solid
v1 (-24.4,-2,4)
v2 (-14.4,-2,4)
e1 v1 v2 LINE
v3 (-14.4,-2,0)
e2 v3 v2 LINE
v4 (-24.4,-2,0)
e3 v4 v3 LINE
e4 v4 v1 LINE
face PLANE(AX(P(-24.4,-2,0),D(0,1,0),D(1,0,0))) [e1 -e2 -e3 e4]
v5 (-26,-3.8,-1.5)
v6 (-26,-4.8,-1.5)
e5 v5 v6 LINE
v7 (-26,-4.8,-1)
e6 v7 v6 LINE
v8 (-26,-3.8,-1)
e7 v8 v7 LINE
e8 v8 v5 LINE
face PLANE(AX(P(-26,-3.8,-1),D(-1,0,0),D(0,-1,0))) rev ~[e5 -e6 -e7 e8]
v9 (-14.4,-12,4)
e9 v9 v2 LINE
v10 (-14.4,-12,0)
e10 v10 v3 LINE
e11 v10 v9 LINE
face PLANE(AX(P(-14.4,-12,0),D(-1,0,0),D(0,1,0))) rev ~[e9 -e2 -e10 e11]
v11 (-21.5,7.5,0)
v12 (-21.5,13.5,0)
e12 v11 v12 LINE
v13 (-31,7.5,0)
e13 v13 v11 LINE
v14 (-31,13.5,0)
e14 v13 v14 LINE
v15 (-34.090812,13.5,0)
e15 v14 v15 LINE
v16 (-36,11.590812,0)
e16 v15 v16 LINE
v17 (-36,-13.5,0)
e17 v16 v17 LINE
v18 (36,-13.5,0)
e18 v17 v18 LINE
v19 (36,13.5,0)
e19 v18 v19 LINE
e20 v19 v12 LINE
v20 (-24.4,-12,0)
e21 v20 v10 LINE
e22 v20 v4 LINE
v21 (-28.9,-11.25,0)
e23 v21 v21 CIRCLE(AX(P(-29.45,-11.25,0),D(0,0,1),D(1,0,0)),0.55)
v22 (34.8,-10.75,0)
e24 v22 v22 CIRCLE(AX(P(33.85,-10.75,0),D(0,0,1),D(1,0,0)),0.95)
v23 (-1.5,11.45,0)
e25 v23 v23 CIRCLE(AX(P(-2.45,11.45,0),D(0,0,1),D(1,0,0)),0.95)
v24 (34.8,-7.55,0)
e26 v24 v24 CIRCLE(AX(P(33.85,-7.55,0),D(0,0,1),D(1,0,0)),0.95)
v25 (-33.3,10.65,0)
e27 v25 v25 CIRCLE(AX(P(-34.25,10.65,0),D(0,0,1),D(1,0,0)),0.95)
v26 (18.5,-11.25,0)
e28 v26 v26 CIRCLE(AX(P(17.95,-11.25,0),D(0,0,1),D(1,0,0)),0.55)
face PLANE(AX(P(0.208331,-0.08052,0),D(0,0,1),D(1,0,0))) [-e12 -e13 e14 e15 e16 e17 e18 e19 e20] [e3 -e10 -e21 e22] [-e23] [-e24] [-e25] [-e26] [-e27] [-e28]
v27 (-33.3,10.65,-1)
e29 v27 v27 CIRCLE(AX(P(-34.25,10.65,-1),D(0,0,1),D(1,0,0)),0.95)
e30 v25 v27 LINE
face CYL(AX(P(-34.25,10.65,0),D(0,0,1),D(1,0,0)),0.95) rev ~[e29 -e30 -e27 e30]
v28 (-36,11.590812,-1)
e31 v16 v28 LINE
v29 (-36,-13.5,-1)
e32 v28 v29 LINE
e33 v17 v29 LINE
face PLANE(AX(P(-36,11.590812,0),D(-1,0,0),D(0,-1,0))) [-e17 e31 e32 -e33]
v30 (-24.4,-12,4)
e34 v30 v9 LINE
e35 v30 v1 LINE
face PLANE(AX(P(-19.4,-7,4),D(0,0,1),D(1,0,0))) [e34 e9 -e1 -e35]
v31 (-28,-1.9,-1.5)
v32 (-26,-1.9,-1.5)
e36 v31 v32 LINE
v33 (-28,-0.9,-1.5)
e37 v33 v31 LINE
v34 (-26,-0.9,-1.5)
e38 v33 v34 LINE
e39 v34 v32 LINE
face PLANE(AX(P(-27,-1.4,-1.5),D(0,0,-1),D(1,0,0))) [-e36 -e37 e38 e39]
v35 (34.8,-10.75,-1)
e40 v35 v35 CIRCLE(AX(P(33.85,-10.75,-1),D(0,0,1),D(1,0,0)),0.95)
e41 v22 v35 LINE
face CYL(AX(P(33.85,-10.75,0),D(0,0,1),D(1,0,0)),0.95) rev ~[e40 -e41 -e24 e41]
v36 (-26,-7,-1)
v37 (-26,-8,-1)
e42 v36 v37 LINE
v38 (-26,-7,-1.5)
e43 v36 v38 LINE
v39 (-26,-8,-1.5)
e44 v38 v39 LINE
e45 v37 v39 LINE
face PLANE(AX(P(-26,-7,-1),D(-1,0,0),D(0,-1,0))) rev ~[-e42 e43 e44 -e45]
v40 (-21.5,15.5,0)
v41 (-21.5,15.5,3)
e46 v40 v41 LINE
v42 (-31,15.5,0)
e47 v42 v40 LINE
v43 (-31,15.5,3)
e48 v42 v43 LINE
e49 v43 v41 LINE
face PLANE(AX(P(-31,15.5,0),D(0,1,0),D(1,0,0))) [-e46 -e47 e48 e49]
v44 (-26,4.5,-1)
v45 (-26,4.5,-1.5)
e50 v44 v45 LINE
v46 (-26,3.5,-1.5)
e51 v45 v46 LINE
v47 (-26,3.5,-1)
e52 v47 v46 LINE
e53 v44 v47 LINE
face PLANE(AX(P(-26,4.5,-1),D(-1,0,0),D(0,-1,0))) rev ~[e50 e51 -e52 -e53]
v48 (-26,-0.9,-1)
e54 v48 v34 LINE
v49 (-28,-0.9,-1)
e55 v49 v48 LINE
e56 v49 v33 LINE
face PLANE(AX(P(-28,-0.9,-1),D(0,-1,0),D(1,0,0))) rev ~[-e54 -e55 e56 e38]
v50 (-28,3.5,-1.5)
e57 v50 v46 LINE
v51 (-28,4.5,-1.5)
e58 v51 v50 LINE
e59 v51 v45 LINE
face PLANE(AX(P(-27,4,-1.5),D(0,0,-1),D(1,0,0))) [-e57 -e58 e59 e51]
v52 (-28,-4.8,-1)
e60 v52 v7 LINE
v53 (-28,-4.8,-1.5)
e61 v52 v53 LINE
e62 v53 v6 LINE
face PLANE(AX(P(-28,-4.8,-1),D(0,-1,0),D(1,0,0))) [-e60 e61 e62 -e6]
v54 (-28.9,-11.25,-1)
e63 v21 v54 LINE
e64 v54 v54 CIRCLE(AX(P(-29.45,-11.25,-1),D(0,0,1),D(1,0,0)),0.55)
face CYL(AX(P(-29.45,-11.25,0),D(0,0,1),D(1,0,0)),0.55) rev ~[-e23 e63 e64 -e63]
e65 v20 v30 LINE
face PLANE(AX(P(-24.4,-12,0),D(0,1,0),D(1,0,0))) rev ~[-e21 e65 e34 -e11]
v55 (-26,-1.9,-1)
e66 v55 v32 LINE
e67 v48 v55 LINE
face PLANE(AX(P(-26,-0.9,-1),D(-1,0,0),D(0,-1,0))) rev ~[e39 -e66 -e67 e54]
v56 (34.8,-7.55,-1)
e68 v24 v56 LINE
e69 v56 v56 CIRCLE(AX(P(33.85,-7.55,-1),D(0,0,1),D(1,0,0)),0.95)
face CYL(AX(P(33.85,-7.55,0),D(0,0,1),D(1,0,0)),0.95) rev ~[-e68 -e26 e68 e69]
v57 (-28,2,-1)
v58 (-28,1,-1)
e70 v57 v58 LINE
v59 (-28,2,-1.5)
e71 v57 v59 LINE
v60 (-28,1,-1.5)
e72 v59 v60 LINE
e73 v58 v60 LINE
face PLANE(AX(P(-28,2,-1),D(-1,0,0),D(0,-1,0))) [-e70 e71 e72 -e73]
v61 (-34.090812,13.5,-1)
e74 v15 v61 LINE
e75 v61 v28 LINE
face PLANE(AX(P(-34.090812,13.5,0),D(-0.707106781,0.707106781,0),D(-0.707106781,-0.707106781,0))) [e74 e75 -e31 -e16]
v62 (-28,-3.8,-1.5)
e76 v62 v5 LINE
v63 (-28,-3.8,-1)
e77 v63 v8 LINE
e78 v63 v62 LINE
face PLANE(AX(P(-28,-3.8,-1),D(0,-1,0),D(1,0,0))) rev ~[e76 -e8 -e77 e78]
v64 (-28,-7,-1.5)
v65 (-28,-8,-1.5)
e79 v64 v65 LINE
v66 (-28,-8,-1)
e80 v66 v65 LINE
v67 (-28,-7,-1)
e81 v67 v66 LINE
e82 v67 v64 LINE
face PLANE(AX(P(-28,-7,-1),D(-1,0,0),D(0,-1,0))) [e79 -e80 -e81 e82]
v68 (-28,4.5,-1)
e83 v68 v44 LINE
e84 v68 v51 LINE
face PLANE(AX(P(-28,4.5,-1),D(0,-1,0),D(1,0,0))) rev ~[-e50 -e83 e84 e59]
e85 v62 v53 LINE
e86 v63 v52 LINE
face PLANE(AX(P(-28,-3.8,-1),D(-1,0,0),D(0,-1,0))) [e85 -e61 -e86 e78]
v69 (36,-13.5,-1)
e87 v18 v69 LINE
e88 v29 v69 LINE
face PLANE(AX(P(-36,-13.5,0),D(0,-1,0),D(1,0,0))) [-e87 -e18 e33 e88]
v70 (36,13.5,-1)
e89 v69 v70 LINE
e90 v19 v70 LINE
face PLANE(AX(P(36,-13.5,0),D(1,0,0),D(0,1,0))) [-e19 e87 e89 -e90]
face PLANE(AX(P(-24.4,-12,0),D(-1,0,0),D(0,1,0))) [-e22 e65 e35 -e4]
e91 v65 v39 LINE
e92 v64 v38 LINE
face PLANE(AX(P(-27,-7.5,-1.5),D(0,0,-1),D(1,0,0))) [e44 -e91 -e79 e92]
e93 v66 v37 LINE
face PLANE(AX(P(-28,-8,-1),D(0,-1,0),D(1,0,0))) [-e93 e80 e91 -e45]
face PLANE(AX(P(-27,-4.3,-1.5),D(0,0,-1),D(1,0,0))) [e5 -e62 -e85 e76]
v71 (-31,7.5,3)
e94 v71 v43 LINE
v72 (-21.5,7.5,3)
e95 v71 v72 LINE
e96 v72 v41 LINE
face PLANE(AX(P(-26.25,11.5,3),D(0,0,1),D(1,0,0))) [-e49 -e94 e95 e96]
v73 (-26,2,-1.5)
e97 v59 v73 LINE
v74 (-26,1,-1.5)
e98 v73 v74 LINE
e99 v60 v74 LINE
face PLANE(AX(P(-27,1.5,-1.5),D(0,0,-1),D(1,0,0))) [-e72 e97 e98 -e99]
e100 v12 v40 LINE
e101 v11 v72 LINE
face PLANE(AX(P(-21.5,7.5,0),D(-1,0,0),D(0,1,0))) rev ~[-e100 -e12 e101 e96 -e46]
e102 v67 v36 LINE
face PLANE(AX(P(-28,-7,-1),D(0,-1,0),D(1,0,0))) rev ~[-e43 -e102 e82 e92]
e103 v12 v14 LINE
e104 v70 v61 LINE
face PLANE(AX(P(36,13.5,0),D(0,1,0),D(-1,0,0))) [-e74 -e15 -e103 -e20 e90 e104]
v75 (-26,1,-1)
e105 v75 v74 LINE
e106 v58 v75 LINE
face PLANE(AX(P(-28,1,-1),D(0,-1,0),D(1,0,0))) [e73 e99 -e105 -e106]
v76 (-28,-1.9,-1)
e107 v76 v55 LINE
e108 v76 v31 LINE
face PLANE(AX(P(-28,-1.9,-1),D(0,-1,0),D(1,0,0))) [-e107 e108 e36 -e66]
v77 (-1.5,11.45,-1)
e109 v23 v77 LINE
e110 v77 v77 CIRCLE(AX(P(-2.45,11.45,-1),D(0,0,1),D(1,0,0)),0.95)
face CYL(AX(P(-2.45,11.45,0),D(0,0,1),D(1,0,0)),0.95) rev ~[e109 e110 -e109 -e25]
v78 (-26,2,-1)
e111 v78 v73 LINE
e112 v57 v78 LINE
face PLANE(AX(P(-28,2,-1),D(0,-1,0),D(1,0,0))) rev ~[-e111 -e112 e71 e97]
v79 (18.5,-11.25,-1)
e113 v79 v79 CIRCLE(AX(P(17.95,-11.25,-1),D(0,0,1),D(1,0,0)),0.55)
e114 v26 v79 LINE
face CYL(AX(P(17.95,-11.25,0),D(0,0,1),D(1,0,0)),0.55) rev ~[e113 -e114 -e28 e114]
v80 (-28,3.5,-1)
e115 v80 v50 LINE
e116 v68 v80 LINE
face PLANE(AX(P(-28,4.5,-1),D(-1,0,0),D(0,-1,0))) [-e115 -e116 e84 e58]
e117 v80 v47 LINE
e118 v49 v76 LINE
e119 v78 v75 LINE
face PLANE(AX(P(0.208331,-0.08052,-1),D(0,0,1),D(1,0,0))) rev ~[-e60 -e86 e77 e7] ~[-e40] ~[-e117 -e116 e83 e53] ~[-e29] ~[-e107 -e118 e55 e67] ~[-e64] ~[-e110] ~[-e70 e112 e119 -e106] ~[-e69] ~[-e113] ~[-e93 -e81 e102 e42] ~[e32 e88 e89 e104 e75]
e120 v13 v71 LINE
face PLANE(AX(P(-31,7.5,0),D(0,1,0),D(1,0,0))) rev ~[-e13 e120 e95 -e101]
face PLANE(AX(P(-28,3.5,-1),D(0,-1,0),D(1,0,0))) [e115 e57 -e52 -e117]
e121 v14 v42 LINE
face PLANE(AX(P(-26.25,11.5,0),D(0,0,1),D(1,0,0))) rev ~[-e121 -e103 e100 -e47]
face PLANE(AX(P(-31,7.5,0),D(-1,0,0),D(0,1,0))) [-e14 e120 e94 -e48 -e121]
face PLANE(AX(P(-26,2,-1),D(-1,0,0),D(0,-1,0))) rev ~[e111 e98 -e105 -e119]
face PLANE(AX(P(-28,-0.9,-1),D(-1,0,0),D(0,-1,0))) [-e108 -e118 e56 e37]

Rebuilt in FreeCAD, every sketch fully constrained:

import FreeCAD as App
import Part
import Sketcher
Q = App.Units.Quantity


def add_polygon(sketch, points):
    """Adds a closed chain of lines whose ends are joined by coincident constraints."""
    first, n = sketch.GeometryCount, len(points)
    for a, b in zip(points, points[1:] + points[:1]):
        sketch.addGeometry(Part.LineSegment(App.Vector(*a, 0), App.Vector(*b, 0)), False)
    for i in range(n):
        sketch.addConstraint(Sketcher.Constraint("Coincident", first + i, 2, first + (i + 1) % n, 1))

doc = App.newDocument("Part")
params = doc.addObject("Spreadsheet::Sheet", "Params")
for row, (alias, value) in enumerate([
    ("sketch1_diameter", "1.1 mm"),
    ("sketch1_diameter2", "1.9 mm"),
    ("sketch1_width", "72 mm"),
    ("sketch1_height", "27 mm"),
    ("sketch1_length", "2.7 mm"),
    ("pad1_length", "1 mm"),
    ("sketch2_width", "10 mm"),
    ("pad2_length", "4 mm"),
    ("sketch3_width", "2 mm"),
    ("sketch3_height", "1 mm"),
    ("pad3_length", "0.5 mm"),
    ("sketch4_height", "8 mm"),
    ("sketch4_width", "9.5 mm"),
    ("pad4_length", "3 mm"),
], start=1):
    params.set(f"A{row}", alias)
    params.set(f"B{row}", "=" + value)
    params.setAlias(f"B{row}", alias)

body = doc.addObject("PartDesign::Body", "Body")

# Sketch on XY plane
sketch1 = body.newObject("Sketcher::SketchObject", "Sketch")
sketch1.AttachmentSupport = (doc.getObject("XY_Plane"), [""])
sketch1.MapMode = "FlatFace"
add_polygon(sketch1, [(-36, -13.5), (36, -13.5), (36, 13.5), (-34.1, 13.5), (-36, 11.6)])  # lines 0-4
sketch1.addGeometry(Part.Circle(App.Vector(-29.4, -11.2, 0), App.Vector(0, 0, 1), 0.6), False)  # 5
sketch1.addGeometry(Part.Circle(App.Vector(17.9, -11.2, 0), App.Vector(0, 0, 1), 0.6), False)  # 6
sketch1.addGeometry(Part.Circle(App.Vector(33.9, -10.8, 0), App.Vector(0, 0, 1), 0.9), False)  # 7
sketch1.addGeometry(Part.Circle(App.Vector(33.9, -7.5, 0), App.Vector(0, 0, 1), 0.9), False)  # 8
sketch1.addGeometry(Part.Circle(App.Vector(-34.2, 10.7, 0), App.Vector(0, 0, 1), 0.9), False)  # 9
sketch1.addGeometry(Part.Circle(App.Vector(-2.5, 11.4, 0), App.Vector(0, 0, 1), 0.9), False)  # 10
sketch1.addConstraint(Sketcher.Constraint("Horizontal", 0))
sketch1.addConstraint(Sketcher.Constraint("Vertical", 1))
sketch1.addConstraint(Sketcher.Constraint("Horizontal", 2))
sketch1.addConstraint(Sketcher.Constraint("Vertical", 4))
sketch1.addConstraint(Sketcher.Constraint("Equal", 5, 6))
sketch1.addConstraint(Sketcher.Constraint("Equal", 7, 8))
sketch1.addConstraint(Sketcher.Constraint("Equal", 8, 9))
sketch1.addConstraint(Sketcher.Constraint("Equal", 9, 10))
sketch1.addConstraint(Sketcher.Constraint("Symmetric", 1, 2, 4, 2, -1, 1))
sketch1.addConstraint(Sketcher.Constraint("Horizontal", 5, 3, 6, 3))
sketch1.addConstraint(Sketcher.Constraint("Vertical", 7, 3, 8, 3))
sketch1.addConstraint(Sketcher.Constraint("Diameter", 5, 1.1))
sketch1.addConstraint(Sketcher.Constraint("Diameter", 7, 1.9))
sketch1.addConstraint(Sketcher.Constraint("DistanceX", 0, 1, 0, 2, 72.0))
sketch1.addConstraint(Sketcher.Constraint("DistanceY", 1, 1, 1, 2, 27.0))
sketch1.addConstraint(Sketcher.Constraint("Angle", 3, Q("-135 deg")))
sketch1.addConstraint(Sketcher.Constraint("DistanceX", 5, 3, 10, 3, 27.0))
sketch1.addConstraint(Sketcher.Constraint("DistanceY", 8, 3, 10, 3, 19.0))
sketch1.addConstraint(Sketcher.Constraint("Distance", 3, 2.7))
sketch1.addConstraint(Sketcher.Constraint("DistanceX", 5, 3, 6, 3, 47.4))
sketch1.addConstraint(Sketcher.Constraint("DistanceX", 6, 3, 7, 3, 15.9))
sketch1.addConstraint(Sketcher.Constraint("DistanceY", 6, 3, 7, 3, 0.5))
sketch1.addConstraint(Sketcher.Constraint("DistanceY", 7, 3, 8, 3, 3.2))
sketch1.addConstraint(Sketcher.Constraint("DistanceX", 9, 3, 5, 3, 4.8))
sketch1.addConstraint(Sketcher.Constraint("DistanceY", 5, 3, 9, 3, 21.9))
sketch1.addConstraint(Sketcher.Constraint("DistanceX", 5, 3, -1, 1, 29.45))
sketch1.addConstraint(Sketcher.Constraint("DistanceY", 5, 3, -1, 1, 11.25))
sketch1.setExpression("Constraints[16]", "Params.sketch1_diameter")
sketch1.setExpression("Constraints[17]", "Params.sketch1_diameter2")
sketch1.setExpression("Constraints[18]", "Params.sketch1_width")
sketch1.setExpression("Constraints[19]", "Params.sketch1_height")
sketch1.setExpression("Constraints[23]", "Params.sketch1_length")
pad1 = body.newObject("PartDesign::Pad", "Pad")
pad1.Profile = sketch1
pad1.setExpression("Length", "Params.pad1_length")
pad1.Reversed = True

# Sketch on XY plane
sketch2 = body.newObject("Sketcher::SketchObject", "Sketch001")
sketch2.AttachmentSupport = (doc.getObject("XY_Plane"), [""])
sketch2.MapMode = "FlatFace"
add_polygon(sketch2, [(-24, -2), (-24, -12), (-14, -12), (-14, -2)])  # lines 0-3
sketch2.addConstraint(Sketcher.Constraint("Vertical", 0))
sketch2.addConstraint(Sketcher.Constraint("Horizontal", 1))
sketch2.addConstraint(Sketcher.Constraint("Vertical", 2))
sketch2.addConstraint(Sketcher.Constraint("Horizontal", 3))
sketch2.addConstraint(Sketcher.Constraint("Equal", 3, 0))
sketch2.addConstraint(Sketcher.Constraint("DistanceX", 1, 1, 1, 2, 10.0))
sketch2.addConstraint(Sketcher.Constraint("DistanceY", 0, 2, -1, 1, 12.0))
sketch2.addConstraint(Sketcher.Constraint("DistanceX", 0, 2, -1, 1, 24.4))
sketch2.setExpression("Constraints[9]", "Params.sketch2_width")
pad2 = body.newObject("PartDesign::Pad", "Pad001")
pad2.Profile = sketch2
pad2.setExpression("Length", "Params.pad2_length")

# Sketch on XY plane
sketch3 = body.newObject("Sketcher::SketchObject", "Sketch002")
sketch3.AttachmentSupport = (doc.getObject("XY_Plane"), [""])
sketch3.MapMode = "FlatFace"
sketch3.AttachmentOffset = App.Placement(App.Vector(0, 0, -1), App.Rotation())
add_polygon(sketch3, [(-28, -8), (-28, -7), (-26, -7), (-26, -8)])  # lines 0-3
add_polygon(sketch3, [(-28, -4.8), (-28, -3.8), (-26, -3.8), (-26, -4.8)])  # lines 4-7
add_polygon(sketch3, [(-28, -1.9), (-28, -0.9), (-26, -0.9), (-26, -1.9)])  # lines 8-11
add_polygon(sketch3, [(-28, 1), (-28, 2), (-26, 2), (-26, 1)])  # lines 12-15
add_polygon(sketch3, [(-28, 3.5), (-28, 4.5), (-26, 4.5), (-26, 3.5)])  # lines 16-19
sketch3.addConstraint(Sketcher.Constraint("Vertical", 0))
sketch3.addConstraint(Sketcher.Constraint("Horizontal", 1))
sketch3.addConstraint(Sketcher.Constraint("Vertical", 2))
sketch3.addConstraint(Sketcher.Constraint("Horizontal", 3))
sketch3.addConstraint(Sketcher.Constraint("Vertical", 4))
sketch3.addConstraint(Sketcher.Constraint("Horizontal", 5))
sketch3.addConstraint(Sketcher.Constraint("Vertical", 6))
sketch3.addConstraint(Sketcher.Constraint("Horizontal", 7))
sketch3.addConstraint(Sketcher.Constraint("Vertical", 8))
sketch3.addConstraint(Sketcher.Constraint("Horizontal", 9))
sketch3.addConstraint(Sketcher.Constraint("Vertical", 10))
sketch3.addConstraint(Sketcher.Constraint("Horizontal", 11))
sketch3.addConstraint(Sketcher.Constraint("Vertical", 12))
sketch3.addConstraint(Sketcher.Constraint("Horizontal", 13))
sketch3.addConstraint(Sketcher.Constraint("Vertical", 14))
sketch3.addConstraint(Sketcher.Constraint("Horizontal", 15))
sketch3.addConstraint(Sketcher.Constraint("Vertical", 16))
sketch3.addConstraint(Sketcher.Constraint("Horizontal", 17))
sketch3.addConstraint(Sketcher.Constraint("Vertical", 18))
sketch3.addConstraint(Sketcher.Constraint("Horizontal", 19))
sketch3.addConstraint(Sketcher.Constraint("Vertical", 3, 2, 4, 2))
sketch3.addConstraint(Sketcher.Constraint("Vertical", 2, 2, 5, 2))
sketch3.addConstraint(Sketcher.Constraint("Vertical", 7, 2, 8, 2))
sketch3.addConstraint(Sketcher.Constraint("Vertical", 6, 2, 9, 2))
sketch3.addConstraint(Sketcher.Constraint("Vertical", 11, 2, 12, 2))
sketch3.addConstraint(Sketcher.Constraint("Vertical", 10, 2, 13, 2))
sketch3.addConstraint(Sketcher.Constraint("Vertical", 15, 2, 16, 2))
sketch3.addConstraint(Sketcher.Constraint("Vertical", 14, 2, 17, 2))
sketch3.addConstraint(Sketcher.Constraint("Equal", 2, 4))
sketch3.addConstraint(Sketcher.Constraint("Equal", 6, 8))
sketch3.addConstraint(Sketcher.Constraint("Equal", 10, 12))
sketch3.addConstraint(Sketcher.Constraint("Equal", 14, 16))
sketch3.addConstraint(Sketcher.Constraint("DistanceX", 1, 1, 1, 2, 2.0))
sketch3.addConstraint(Sketcher.Constraint("DistanceY", 0, 1, 0, 2, 1.0))
sketch3.addConstraint(Sketcher.Constraint("DistanceX", 0, 2, -1, 1, 28.0))
sketch3.addConstraint(Sketcher.Constraint("DistanceY", 0, 2, -1, 1, 7.0))
sketch3.addConstraint(Sketcher.Constraint("DistanceY", -1, 1, 12, 2, 2.0))
sketch3.addConstraint(Sketcher.Constraint("DistanceY", 4, 2, -1, 1, 3.8))
sketch3.addConstraint(Sketcher.Constraint("DistanceY", 8, 2, -1, 1, 0.9))
sketch3.addConstraint(Sketcher.Constraint("DistanceY", -1, 1, 16, 2, 4.5))
sketch3.setExpression("Constraints[52]", "Params.sketch3_width")
sketch3.setExpression("Constraints[53]", "Params.sketch3_height")
pad3 = body.newObject("PartDesign::Pad", "Pad002")
pad3.Profile = sketch3
pad3.setExpression("Length", "Params.pad3_length")
pad3.Reversed = True

# Sketch on XY plane
sketch4 = body.newObject("Sketcher::SketchObject", "Sketch003")
sketch4.AttachmentSupport = (doc.getObject("XY_Plane"), [""])
sketch4.MapMode = "FlatFace"
add_polygon(sketch4, [(-31, 16), (-31, 8), (-22, 8), (-22, 16)])  # lines 0-3
sketch4.addConstraint(Sketcher.Constraint("Vertical", 0))
sketch4.addConstraint(Sketcher.Constraint("Horizontal", 1))
sketch4.addConstraint(Sketcher.Constraint("Vertical", 2))
sketch4.addConstraint(Sketcher.Constraint("Horizontal", 3))
sketch4.addConstraint(Sketcher.Constraint("DistanceY", 0, 2, 0, 1, 8.0))
sketch4.addConstraint(Sketcher.Constraint("DistanceX", 1, 1, 1, 2, 9.5))
sketch4.addConstraint(Sketcher.Constraint("DistanceX", 0, 2, -1, 1, 31.0))
sketch4.addConstraint(Sketcher.Constraint("DistanceY", -1, 1, 0, 2, 7.5))
sketch4.setExpression("Constraints[8]", "Params.sketch4_height")
sketch4.setExpression("Constraints[9]", "Params.sketch4_width")
pad4 = body.newObject("PartDesign::Pad", "Pad003")
pad4.Profile = sketch4
pad4.setExpression("Length", "Params.pad4_length")

doc.recompute()
